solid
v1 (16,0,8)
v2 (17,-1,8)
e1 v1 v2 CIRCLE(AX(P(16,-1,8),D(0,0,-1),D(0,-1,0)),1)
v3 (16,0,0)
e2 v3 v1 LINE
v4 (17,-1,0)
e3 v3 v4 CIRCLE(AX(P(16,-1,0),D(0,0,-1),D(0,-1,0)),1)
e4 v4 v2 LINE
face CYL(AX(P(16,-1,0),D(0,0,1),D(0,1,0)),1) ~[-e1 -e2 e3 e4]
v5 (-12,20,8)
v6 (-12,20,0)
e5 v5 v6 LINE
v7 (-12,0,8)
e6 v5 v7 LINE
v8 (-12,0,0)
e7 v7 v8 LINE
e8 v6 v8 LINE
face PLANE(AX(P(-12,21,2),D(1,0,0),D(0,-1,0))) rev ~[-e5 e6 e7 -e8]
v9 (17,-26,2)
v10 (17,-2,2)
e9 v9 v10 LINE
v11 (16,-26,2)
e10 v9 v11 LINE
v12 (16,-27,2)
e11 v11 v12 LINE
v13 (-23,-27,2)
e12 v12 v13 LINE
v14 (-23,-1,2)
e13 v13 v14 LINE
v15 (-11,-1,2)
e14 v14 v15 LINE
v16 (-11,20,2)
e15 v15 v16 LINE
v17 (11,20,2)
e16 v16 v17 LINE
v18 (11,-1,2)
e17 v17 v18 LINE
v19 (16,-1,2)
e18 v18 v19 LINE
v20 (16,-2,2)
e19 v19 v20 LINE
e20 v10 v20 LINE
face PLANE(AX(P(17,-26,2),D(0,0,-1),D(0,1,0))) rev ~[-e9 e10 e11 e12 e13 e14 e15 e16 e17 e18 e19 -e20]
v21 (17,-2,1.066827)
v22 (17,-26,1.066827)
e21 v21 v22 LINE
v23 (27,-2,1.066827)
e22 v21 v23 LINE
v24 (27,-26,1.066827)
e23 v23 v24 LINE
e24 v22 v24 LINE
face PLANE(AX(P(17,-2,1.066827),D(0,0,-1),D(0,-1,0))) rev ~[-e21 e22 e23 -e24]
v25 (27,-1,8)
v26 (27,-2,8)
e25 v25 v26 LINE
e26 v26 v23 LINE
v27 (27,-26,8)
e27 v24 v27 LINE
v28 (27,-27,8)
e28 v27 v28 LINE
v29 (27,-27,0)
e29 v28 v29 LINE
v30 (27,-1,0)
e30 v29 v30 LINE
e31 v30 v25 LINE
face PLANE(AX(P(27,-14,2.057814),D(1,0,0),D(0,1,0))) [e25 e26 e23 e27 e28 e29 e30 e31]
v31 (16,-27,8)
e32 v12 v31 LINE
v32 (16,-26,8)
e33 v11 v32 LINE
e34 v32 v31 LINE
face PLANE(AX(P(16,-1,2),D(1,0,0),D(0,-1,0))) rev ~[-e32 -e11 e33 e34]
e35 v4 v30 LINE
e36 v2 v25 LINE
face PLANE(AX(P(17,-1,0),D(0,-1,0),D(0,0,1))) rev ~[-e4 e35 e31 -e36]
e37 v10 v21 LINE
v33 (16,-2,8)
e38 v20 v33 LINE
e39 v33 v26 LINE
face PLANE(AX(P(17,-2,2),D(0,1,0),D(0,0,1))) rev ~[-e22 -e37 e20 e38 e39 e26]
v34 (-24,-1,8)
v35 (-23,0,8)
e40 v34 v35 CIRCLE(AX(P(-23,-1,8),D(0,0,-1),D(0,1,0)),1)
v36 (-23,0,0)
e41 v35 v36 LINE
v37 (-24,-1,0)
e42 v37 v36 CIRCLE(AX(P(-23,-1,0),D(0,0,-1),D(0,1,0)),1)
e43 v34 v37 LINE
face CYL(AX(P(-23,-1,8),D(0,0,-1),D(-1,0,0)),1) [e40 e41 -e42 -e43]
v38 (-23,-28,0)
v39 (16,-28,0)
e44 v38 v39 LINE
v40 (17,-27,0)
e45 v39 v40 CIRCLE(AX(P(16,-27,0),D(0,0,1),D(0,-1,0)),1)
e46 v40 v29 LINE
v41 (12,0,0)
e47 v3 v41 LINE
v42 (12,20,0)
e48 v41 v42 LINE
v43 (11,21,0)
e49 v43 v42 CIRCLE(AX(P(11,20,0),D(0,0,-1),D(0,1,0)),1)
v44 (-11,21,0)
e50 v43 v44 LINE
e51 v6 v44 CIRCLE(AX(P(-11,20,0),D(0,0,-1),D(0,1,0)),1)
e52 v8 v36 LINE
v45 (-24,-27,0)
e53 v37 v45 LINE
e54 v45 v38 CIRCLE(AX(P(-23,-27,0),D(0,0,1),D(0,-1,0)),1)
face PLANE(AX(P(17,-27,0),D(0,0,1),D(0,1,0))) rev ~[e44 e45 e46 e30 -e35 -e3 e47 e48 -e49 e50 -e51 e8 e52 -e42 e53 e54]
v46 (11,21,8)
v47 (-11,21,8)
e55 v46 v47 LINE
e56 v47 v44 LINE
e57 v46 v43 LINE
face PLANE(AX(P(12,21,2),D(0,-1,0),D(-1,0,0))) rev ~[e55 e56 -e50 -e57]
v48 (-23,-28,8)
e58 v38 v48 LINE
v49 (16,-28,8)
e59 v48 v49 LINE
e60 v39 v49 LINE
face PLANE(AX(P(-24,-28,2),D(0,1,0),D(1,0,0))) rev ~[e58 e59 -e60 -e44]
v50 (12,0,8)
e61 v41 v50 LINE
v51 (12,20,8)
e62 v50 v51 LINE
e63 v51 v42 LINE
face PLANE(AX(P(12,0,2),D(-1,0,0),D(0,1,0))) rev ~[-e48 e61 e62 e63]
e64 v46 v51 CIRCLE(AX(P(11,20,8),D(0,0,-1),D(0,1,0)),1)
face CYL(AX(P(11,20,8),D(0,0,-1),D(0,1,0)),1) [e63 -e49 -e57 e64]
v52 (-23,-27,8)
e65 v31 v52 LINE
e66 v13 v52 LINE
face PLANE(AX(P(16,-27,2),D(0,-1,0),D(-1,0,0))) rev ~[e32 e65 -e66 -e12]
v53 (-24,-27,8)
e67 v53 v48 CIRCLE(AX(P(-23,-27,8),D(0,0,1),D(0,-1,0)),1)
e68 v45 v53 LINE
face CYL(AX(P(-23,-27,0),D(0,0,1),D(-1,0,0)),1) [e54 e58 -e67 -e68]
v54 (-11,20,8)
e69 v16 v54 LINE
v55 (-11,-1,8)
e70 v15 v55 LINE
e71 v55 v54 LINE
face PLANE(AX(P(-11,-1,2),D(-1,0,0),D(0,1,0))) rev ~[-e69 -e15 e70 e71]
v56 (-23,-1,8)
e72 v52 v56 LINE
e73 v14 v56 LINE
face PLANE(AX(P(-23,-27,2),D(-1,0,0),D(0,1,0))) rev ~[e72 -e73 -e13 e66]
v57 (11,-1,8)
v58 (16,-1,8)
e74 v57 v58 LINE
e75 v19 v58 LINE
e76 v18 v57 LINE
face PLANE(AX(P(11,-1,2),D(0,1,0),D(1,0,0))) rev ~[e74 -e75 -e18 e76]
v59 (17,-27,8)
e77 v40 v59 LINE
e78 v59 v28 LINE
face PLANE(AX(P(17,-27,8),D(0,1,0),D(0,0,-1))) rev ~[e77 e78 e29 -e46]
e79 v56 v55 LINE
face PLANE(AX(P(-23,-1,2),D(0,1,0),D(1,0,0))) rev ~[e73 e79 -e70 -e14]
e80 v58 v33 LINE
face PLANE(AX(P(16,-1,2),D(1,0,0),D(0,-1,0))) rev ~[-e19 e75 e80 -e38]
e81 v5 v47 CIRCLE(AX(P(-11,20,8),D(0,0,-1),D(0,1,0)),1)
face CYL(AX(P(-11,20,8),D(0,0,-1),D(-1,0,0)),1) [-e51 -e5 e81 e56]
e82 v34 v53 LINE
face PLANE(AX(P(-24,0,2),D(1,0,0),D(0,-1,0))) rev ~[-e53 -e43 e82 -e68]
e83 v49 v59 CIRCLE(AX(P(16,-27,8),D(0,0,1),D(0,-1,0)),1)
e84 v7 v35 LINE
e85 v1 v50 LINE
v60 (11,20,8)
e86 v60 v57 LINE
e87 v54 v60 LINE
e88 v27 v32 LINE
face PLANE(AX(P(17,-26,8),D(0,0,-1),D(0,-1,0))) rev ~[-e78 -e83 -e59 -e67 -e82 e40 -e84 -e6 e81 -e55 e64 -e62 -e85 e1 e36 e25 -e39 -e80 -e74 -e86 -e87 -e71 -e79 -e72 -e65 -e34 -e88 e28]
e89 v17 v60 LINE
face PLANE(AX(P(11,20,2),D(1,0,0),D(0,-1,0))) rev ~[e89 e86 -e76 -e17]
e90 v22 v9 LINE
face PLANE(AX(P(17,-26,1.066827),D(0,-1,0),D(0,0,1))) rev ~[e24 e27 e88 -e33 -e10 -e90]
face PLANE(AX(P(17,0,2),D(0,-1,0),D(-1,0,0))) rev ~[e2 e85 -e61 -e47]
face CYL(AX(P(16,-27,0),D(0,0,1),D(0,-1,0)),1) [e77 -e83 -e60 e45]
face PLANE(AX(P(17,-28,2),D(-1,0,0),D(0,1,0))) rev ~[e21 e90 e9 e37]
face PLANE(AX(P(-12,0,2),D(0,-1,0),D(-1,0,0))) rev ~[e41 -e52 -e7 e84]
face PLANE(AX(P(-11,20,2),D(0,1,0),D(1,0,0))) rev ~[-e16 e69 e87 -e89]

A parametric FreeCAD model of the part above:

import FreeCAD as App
import Part
import Sketcher

V = App.Vector


def edges_at(feature, points):
    """Names of the edges that pass closest to the given points."""
    edges = feature.Shape.Edges
    near = lambda p: min(range(len(edges)), key=lambda i: edges[i].distToShape(Part.Vertex(*p))[0])
    return sorted({f"Edge{near(p) + 1}" for p in points})

doc = App.newDocument("Part")
body = doc.addObject("PartDesign::Body", "Body")

# Sketch on XY plane
sketch1 = body.newObject("Sketcher::SketchObject", "Sketch")
sketch1.AttachmentSupport = (doc.getObject("XY_Plane"), [""])
sketch1.MapMode = "FlatFace"
sketch1.addGeometry([
    Part.LineSegment(V(-24, 0, 0), V(-24, -28, 0)),  # 0
    Part.LineSegment(V(-24, -28, 0), V(17, -28, 0)),  # 1
    Part.LineSegment(V(17, -28, 0), V(17, 0, 0)),  # 2
    Part.LineSegment(V(17, 0, 0), V(12, 0, 0)),  # 3
    Part.LineSegment(V(12, 0, 0), V(12, 21, 0)),  # 4
    Part.LineSegment(V(12, 21, 0), V(-12, 21, 0)),  # 5
    Part.LineSegment(V(-12, 21, 0), V(-12, 0, 0)),  # 6
    Part.LineSegment(V(-12, 0, 0), V(-24, 0, 0)),  # 7
], False)
sketch1.addConstraint([
    Sketcher.Constraint("Coincident", 0, 2, 1, 1),
    Sketcher.Constraint("Coincident", 1, 2, 2, 1),
    Sketcher.Constraint("Coincident", 2, 2, 3, 1),
    Sketcher.Constraint("Coincident", 3, 2, 4, 1),
    Sketcher.Constraint("Coincident", 4, 2, 5, 1),
    Sketcher.Constraint("Coincident", 5, 2, 6, 1),
    Sketcher.Constraint("Coincident", 6, 2, 7, 1),
    Sketcher.Constraint("Coincident", 7, 2, 0, 1),
    Sketcher.Constraint("Vertical", 0),
    Sketcher.Constraint("Horizontal", 1),
    Sketcher.Constraint("Vertical", 2),
    Sketcher.Constraint("Horizontal", 3),
    Sketcher.Constraint("Vertical", 4),
    Sketcher.Constraint("Horizontal", 5),
    Sketcher.Constraint("Vertical", 6),
    Sketcher.Constraint("Horizontal", 7),
    Sketcher.Constraint("Symmetric", 3, 2, 6, 2, -1, 1),
    Sketcher.Constraint("PointOnObject", 2, 2, -1),
    Sketcher.Constraint("DistanceX", 1, 1, 1, 2, 41.0),
    Sketcher.Constraint("DistanceX", 3, 2, 3, 1, 5.0),
    Sketcher.Constraint("DistanceX", 5, 2, 5, 1, 24.0),
    Sketcher.Constraint("DistanceY", 0, 2, 0, 1, 28.0),
    Sketcher.Constraint("DistanceY", 4, 1, 4, 2, 21.0),
])
pad1 = body.newObject("PartDesign::Pad", "Pad")
pad1.Profile = sketch1
pad1.Length = 2

# Sketch on XY plane
sketch2 = body.newObject("Sketcher::SketchObject", "Sketch001")
sketch2.AttachmentSupport = (doc.getObject("XY_Plane"), [""])
sketch2.MapMode = "FlatFace"
sketch2.AttachmentOffset = App.Placement(V(0, 0, 2), App.Rotation())
sketch2.addGeometry([
    Part.LineSegment(V(-24, 0, 0), V(-24, -28, 0)),  # 0
    Part.LineSegment(V(-24, -28, 0), V(17, -28, 0)),  # 1
    Part.LineSegment(V(17, -28, 0), V(17, 0, 0)),  # 2
    Part.LineSegment(V(17, 0, 0), V(12, 0, 0)),  # 3
    Part.LineSegment(V(12, 0, 0), V(12, 21, 0)),  # 4
    Part.LineSegment(V(12, 21, 0), V(-12, 21, 0)),  # 5
    Part.LineSegment(V(-12, 21, 0), V(-12, 0, 0)),  # 6
    Part.LineSegment(V(-12, 0, 0), V(-24, 0, 0)),  # 7
    Part.LineSegment(V(-23, -27, 0), V(-23, -1, 0)),  # 8
    Part.LineSegment(V(-23, -1, 0), V(-11, -1, 0)),  # 9
    Part.LineSegment(V(-11, -1, 0), V(-11, 20, 0)),  # 10
    Part.LineSegment(V(-11, 20, 0), V(11, 20, 0)),  # 11
    Part.LineSegment(V(11, 20, 0), V(11, -1, 0)),  # 12
    Part.LineSegment(V(11, -1, 0), V(16, -1, 0)),  # 13
    Part.LineSegment(V(16, -1, 0), V(16, -27, 0)),  # 14
    Part.LineSegment(V(16, -27, 0), V(-23, -27, 0)),  # 15
], False)
sketch2.addConstraint([
    Sketcher.Constraint("Coincident", 0, 2, 1, 1),
    Sketcher.Constraint("Coincident", 1, 2, 2, 1),
    Sketcher.Constraint("Coincident", 2, 2, 3, 1),
    Sketcher.Constraint("Coincident", 3, 2, 4, 1),
    Sketcher.Constraint("Coincident", 4, 2, 5, 1),
    Sketcher.Constraint("Coincident", 5, 2, 6, 1),
    Sketcher.Constraint("Coincident", 6, 2, 7, 1),
    Sketcher.Constraint("Coincident", 7, 2, 0, 1),
    Sketcher.Constraint("Coincident", 8, 2, 9, 1),
    Sketcher.Constraint("Coincident", 9, 2, 10, 1),
    Sketcher.Constraint("Coincident", 10, 2, 11, 1),
    Sketcher.Constraint("Coincident", 11, 2, 12, 1),
    Sketcher.Constraint("Coincident", 12, 2, 13, 1),
    Sketcher.Constraint("Coincident", 13, 2, 14, 1),
    Sketcher.Constraint("Coincident", 14, 2, 15, 1),
    Sketcher.Constraint("Coincident", 15, 2, 8, 1),
    Sketcher.Constraint("Vertical", 0),
    Sketcher.Constraint("Horizontal", 1),
    Sketcher.Constraint("Vertical", 2),
    Sketcher.Constraint("Horizontal", 3),
    Sketcher.Constraint("Vertical", 4),
    Sketcher.Constraint("Horizontal", 5),
    Sketcher.Constraint("Vertical", 6),
    Sketcher.Constraint("Horizontal", 7),
    Sketcher.Constraint("Vertical", 8),
    Sketcher.Constraint("Horizontal", 9),
    Sketcher.Constraint("Vertical", 10),
    Sketcher.Constraint("Horizontal", 11),
    Sketcher.Constraint("Vertical", 12),
    Sketcher.Constraint("Horizontal", 13),
    Sketcher.Constraint("Vertical", 14),
    Sketcher.Constraint("Horizontal", 15),
    Sketcher.Constraint("Symmetric", 3, 2, 6, 2, -1, 1),
    Sketcher.Constraint("Symmetric", 9, 2, 12, 2, -2),
    Sketcher.Constraint("PointOnObject", 2, 2, -1),
    Sketcher.Constraint("Equal", 7, 9),
    Sketcher.Constraint("Equal", 3, 13),
    Sketcher.Constraint("Equal", 6, 10),
    Sketcher.Constraint("DistanceX", 1, 1, 1, 2, 41.0),
    Sketcher.Constraint("DistanceX", 3, 2, 3, 1, 5.0),
    Sketcher.Constraint("DistanceX", 5, 2, 5, 1, 24.0),
    Sketcher.Constraint("DistanceX", 11, 1, 11, 2, 22.0),
    Sketcher.Constraint("DistanceY", 0, 2, 0, 1, 28.0),
    Sketcher.Constraint("DistanceY", 4, 1, 4, 2, 21.0),
    Sketcher.Constraint("DistanceY", 8, 1, 8, 2, 26.0),
    Sketcher.Constraint("DistanceY", 8, 2, -1, 1, 1.0),
])
pad2 = body.newObject("PartDesign::Pad", "Pad001")
pad2.Profile = sketch2
pad2.Length = 6

# Sketch on YZ plane
sketch3 = body.newObject("Sketcher::SketchObject", "Sketch002")
sketch3.AttachmentSupport = (doc.getObject("YZ_Plane"), [""])
sketch3.MapMode = "FlatFace"
sketch3.AttachmentOffset = App.Placement(V(0, 0, 17), App.Rotation())
sketch3.addGeometry([
    Part.LineSegment(V(-26, 8, 0), V(-26, 2, 0)),
    Part.LineSegment(V(-26, 2, 0), V(-2, 2, 0)),
    Part.LineSegment(V(-2, 2, 0), V(-2, 8, 0)),
    Part.LineSegment(V(-2, 8, 0), V(-26, 8, 0)),
], False)
sketch3.addConstraint([
    Sketcher.Constraint("Coincident", 0, 2, 1, 1),
    Sketcher.Constraint("Coincident", 1, 2, 2, 1),
    Sketcher.Constraint("Coincident", 2, 2, 3, 1),
    Sketcher.Constraint("Coincident", 3, 2, 0, 1),
    Sketcher.Constraint("Vertical", 0),
    Sketcher.Constraint("Horizontal", 1),
    Sketcher.Constraint("Vertical", 2),
    Sketcher.Constraint("Horizontal", 3),
    Sketcher.Constraint("DistanceX", 1, 1, 1, 2, 24.0),
    Sketcher.Constraint("DistanceY", 0, 2, 0, 1, 6.0),
    Sketcher.Constraint("DistanceX", 0, 2, -1, 1, 26.0),
    Sketcher.Constraint("DistanceY", -1, 1, 0, 2, 2.0),
])
pocket1 = body.newObject("PartDesign::Pocket", "Pocket")
pocket1.Profile = sketch3
pocket1.Length = 1
doc.recompute()

fillet = body.newObject("PartDesign::Fillet", "Fillet")
fillet.Base = (pocket1, edges_at(pocket1, [
    (-24, 0, 4),
    (-12, 21, 4),
    (12, 21, 4),
    (17, 0, 4),
    (17, -28, 4),
    (-24, -28, 4),
]))
fillet.Radius = 1

# Sketch on YZ plane
sketch4 = body.newObject("Sketcher::SketchObject", "Sketch003")
sketch4.AttachmentSupport = (doc.getObject("YZ_Plane"), [""])
sketch4.MapMode = "FlatFace"
sketch4.AttachmentOffset = App.Placement(V(0, 0, 17), App.Rotation())
sketch4.addGeometry([
    Part.LineSegment(V(-26, 8, 0), V(-27, 8, 0)),  # 0
    Part.LineSegment(V(-27, 8, 0), V(-27, 0, 0)),  # 1
    Part.LineSegment(V(-27, 0, 0), V(-1, 0, 0)),  # 2
    Part.LineSegment(V(-1, 0, 0), V(-1, 8, 0)),  # 3
    Part.LineSegment(V(-1, 8, 0), V(-2, 8, 0)),  # 4
    Part.LineSegment(V(-2, 8, 0), V(-2, 1.066827, 0)),  # 5
    Part.LineSegment(V(-2, 1.066827, 0), V(-26, 1.066827, 0)),  # 6
    Part.LineSegment(V(-26, 1.066827, 0), V(-26, 8, 0)),  # 7
], False)
sketch4.addConstraint([
    Sketcher.Constraint("Coincident", 0, 2, 1, 1),
    Sketcher.Constraint("Coincident", 1, 2, 2, 1),
    Sketcher.Constraint("Coincident", 2, 2, 3, 1),
    Sketcher.Constraint("Coincident", 3, 2, 4, 1),
    Sketcher.Constraint("Coincident", 4, 2, 5, 1),
    Sketcher.Constraint("Coincident", 5, 2, 6, 1),
    Sketcher.Constraint("Coincident", 6, 2, 7, 1),
    Sketcher.Constraint("Coincident", 7, 2, 0, 1),
    Sketcher.Constraint("Horizontal", 0),
    Sketcher.Constraint("Vertical", 1),
    Sketcher.Constraint("Horizontal", 2),
    Sketcher.Constraint("Vertical", 3),
    Sketcher.Constraint("Horizontal", 4),
    Sketcher.Constraint("Vertical", 5),
    Sketcher.Constraint("Horizontal", 6),
    Sketcher.Constraint("Vertical", 7),
    Sketcher.Constraint("PointOnObject", 1, 2, -1),
    Sketcher.Constraint("Horizontal", 0, 2, 3, 2),
    Sketcher.Constraint("Equal", 0, 4),
    Sketcher.Constraint("DistanceX", 0, 2, 0, 1, 1.0),
    Sketcher.Constraint("DistanceX", 2, 1, 2, 2, 26.0),
    Sketcher.Constraint("DistanceY", 1, 2, 1, 1, 8.0),
    Sketcher.Constraint("DistanceX", 0, 2, -1, 1, 27.0),
    Sketcher.Constraint("DistanceY", 5, 2, 5, 1, 6.933173),
])
pad3 = body.newObject("PartDesign::Pad", "Pad002")
pad3.Profile = sketch4
pad3.Length = 10

doc.recompute()
